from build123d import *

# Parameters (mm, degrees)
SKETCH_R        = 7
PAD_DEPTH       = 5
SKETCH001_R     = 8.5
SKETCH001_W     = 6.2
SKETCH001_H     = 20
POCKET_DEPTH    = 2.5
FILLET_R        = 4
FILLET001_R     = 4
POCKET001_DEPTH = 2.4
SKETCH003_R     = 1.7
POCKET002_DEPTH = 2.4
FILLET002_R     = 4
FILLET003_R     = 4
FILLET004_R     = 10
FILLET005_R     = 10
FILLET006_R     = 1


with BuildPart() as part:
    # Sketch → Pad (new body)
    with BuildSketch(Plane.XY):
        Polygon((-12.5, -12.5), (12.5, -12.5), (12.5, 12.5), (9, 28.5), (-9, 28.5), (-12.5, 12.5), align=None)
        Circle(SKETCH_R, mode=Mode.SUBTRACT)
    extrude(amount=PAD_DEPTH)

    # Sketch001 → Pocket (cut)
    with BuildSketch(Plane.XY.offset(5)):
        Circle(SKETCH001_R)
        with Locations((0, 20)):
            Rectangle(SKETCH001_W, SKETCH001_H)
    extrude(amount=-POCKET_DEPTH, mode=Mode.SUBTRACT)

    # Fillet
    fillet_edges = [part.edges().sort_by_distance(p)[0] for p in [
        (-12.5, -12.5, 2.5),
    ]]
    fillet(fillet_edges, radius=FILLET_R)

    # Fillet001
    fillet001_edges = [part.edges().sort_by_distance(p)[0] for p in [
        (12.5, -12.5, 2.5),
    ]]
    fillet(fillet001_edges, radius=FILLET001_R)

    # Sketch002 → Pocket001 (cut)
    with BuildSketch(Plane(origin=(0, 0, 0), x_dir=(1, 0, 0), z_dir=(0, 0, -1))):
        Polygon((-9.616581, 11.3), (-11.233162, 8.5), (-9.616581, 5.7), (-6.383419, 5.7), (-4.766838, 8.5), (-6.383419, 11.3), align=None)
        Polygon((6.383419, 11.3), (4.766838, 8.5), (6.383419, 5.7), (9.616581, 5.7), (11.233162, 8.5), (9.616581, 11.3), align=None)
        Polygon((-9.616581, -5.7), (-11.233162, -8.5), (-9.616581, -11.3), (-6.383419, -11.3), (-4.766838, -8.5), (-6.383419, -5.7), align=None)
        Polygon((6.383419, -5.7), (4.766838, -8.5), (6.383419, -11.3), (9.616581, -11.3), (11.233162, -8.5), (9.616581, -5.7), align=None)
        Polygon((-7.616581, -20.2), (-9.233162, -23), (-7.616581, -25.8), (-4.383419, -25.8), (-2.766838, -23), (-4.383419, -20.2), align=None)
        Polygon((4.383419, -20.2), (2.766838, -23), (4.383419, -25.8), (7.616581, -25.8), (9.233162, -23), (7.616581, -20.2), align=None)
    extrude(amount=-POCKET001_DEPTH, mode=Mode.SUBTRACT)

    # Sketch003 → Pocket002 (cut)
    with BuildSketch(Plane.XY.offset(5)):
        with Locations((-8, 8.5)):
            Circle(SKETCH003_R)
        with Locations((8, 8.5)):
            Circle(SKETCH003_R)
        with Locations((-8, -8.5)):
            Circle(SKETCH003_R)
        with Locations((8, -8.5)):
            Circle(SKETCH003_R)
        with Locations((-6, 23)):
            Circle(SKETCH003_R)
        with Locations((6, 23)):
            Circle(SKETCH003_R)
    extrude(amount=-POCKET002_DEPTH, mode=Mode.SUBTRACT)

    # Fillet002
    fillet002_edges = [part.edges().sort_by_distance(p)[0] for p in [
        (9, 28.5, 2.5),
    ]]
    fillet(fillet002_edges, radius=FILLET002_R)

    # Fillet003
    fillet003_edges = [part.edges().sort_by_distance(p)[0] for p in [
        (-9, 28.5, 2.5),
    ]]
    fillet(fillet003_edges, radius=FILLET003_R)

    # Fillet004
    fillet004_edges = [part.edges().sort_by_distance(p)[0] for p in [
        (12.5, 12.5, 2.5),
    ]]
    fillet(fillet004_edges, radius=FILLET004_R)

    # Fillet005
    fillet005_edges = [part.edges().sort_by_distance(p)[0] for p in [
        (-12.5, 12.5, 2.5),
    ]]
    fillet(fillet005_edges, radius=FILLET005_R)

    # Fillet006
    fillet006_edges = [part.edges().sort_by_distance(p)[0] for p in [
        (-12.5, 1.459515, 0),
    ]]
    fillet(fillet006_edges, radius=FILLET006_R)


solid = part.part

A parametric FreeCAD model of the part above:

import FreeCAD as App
import Part
import Sketcher
Q = App.Units.Quantity


def edges_at(feature, points):
    """Names of the edges that pass closest to the given points."""
    edges = feature.Shape.Edges
    near = lambda p: min(range(len(edges)), key=lambda i: edges[i].distToShape(Part.Vertex(*p))[0])
    return sorted({f"Edge{near(p) + 1}" for p in points})


def add_polygon(sketch, points):
    """Adds a closed chain of lines whose ends are joined by coincident constraints."""
    first, n = sketch.GeometryCount, len(points)
    for a, b in zip(points, points[1:] + points[:1]):
        sketch.addGeometry(Part.LineSegment(App.Vector(*a, 0), App.Vector(*b, 0)), False)
    for i in range(n):
        sketch.addConstraint(Sketcher.Constraint("Coincident", first + i, 2, first + (i + 1) % n, 1))

doc = App.newDocument("Part")
body = doc.addObject("PartDesign::Body", "Body")

# Sketch on XY plane
sketch1 = body.newObject("Sketcher::SketchObject", "Sketch")
sketch1.AttachmentSupport = (doc.getObject("XY_Plane"), [""])
sketch1.MapMode = "FlatFace"
add_polygon(sketch1, [(-12, -12), (12, -12), (12, 12), (9, 28), (-9, 28), (-12, 12)])  # lines 0-5
sketch1.addGeometry(Part.Circle(App.Vector(0, 0, 0), App.Vector(0, 0, 1), 7), False)  # 6
sketch1.addConstraint(Sketcher.Constraint("Horizontal", 0))
sketch1.addConstraint(Sketcher.Constraint("Vertical", 1))
sketch1.addConstraint(Sketcher.Constraint("Horizontal", 3))
sketch1.addConstraint(Sketcher.Constraint("Vertical", 5))
sketch1.addConstraint(Sketcher.Constraint("Coincident", 6, 3, -1, 1))
sketch1.addConstraint(Sketcher.Constraint("Symmetric", 0, 2, 4, 2, -1, 1))
sketch1.addConstraint(Sketcher.Constraint("Horizontal", 1, 2, 4, 2))
sketch1.addConstraint(Sketcher.Constraint("Equal", 0, 1))
sketch1.addConstraint(Sketcher.Constraint("Equal", 2, 4))
sketch1.addConstraint(Sketcher.Constraint("Diameter", 6, Q("14 mm")))
sketch1.addConstraint(Sketcher.Constraint("DistanceX", 0, 1, 0, 2, Q("25 mm")))
sketch1.addConstraint(Sketcher.Constraint("DistanceX", 3, 2, 3, 1, Q("18 mm")))
sketch1.addConstraint(Sketcher.Constraint("DistanceY", 1, 2, 2, 2, Q("16 mm")))
pad1 = body.newObject("PartDesign::Pad", "Pad")
pad1.Profile = sketch1
pad1.Length = 5

# Sketch on XY plane
sketch2 = body.newObject("Sketcher::SketchObject", "Sketch001")
sketch2.AttachmentSupport = (doc.getObject("XY_Plane"), [""])
sketch2.MapMode = "FlatFace"
sketch2.AttachmentOffset = App.Placement(App.Vector(0, 0, 5), App.Rotation())
sketch2.addGeometry(Part.Circle(App.Vector(0, 0, 0), App.Vector(0, 0, 1), 8), False)  # 0
add_polygon(sketch2, [(-3, 30), (-3, 10), (3, 10), (3, 30)])  # lines 1-4
sketch2.addConstraint(Sketcher.Constraint("Vertical", 1))
sketch2.addConstraint(Sketcher.Constraint("Horizontal", 2))
sketch2.addConstraint(Sketcher.Constraint("Vertical", 3))
sketch2.addConstraint(Sketcher.Constraint("Horizontal", 4))
sketch2.addConstraint(Sketcher.Constraint("Coincident", 0, 3, -1, 1))
sketch2.addConstraint(Sketcher.Constraint("Diameter", 0, Q("17 mm")))
sketch2.addConstraint(Sketcher.Constraint("DistanceY", 1, 2, 1, 1, Q("20 mm")))
sketch2.addConstraint(Sketcher.Constraint("DistanceX", 2, 1, 2, 2, Q("6.2 mm")))
sketch2.addConstraint(Sketcher.Constraint("DistanceY", -1, 1, 1, 2, Q("10 mm")))
sketch2.addConstraint(Sketcher.Constraint("DistanceX", 1, 2, -1, 1, Q("3.1 mm")))
pocket1 = body.newObject("PartDesign::Pocket", "Pocket")
pocket1.Profile = sketch2
pocket1.Length = 2.5
doc.recompute()

fillet = body.newObject("PartDesign::Fillet", "Fillet")
fillet.Base = (pocket1, edges_at(pocket1, [(-12.5, -12.5, 2.5)]))
fillet.Radius = 4
doc.recompute()

fillet2 = body.newObject("PartDesign::Fillet", "Fillet001")
fillet2.Base = (fillet, edges_at(fillet, [(12.5, -12.5, 2.5)]))
fillet2.Radius = 4

# Sketch on XY plane
sketch3 = body.newObject("Sketcher::SketchObject", "Sketch002")
sketch3.AttachmentSupport = (doc.getObject("XY_Plane"), [""])
sketch3.MapMode = "FlatFace"
add_polygon(sketch3, [(-9.6, -11.3), (-11.2, -8.5), (-9.6, -5.7), (-6.4, -5.7), (-4.8, -8.5), (-6.4, -11.3)])  # lines 0-5
add_polygon(sketch3, [(6.4, -11.3), (4.8, -8.5), (6.4, -5.7), (9.6, -5.7), (11.2, -8.5), (9.6, -11.3)])  # lines 6-11
add_polygon(sketch3, [(-9.6, 5.7), (-11.2, 8.5), (-9.6, 11.3), (-6.4, 11.3), (-4.8, 8.5), (-6.4, 5.7)])  # lines 12-17
add_polygon(sketch3, [(6.4, 5.7), (4.8, 8.5), (6.4, 11.3), (9.6, 11.3), (11.2, 8.5), (9.6, 5.7)])  # lines 18-23
add_polygon(sketch3, [(-7.6, 20.2), (-9.2, 23), (-7.6, 25.8), (-4.4, 25.8), (-2.8, 23), (-4.4, 20.2)])  # lines 24-29
add_polygon(sketch3, [(4.4, 20.2), (2.8, 23), (4.4, 25.8), (7.6, 25.8), (9.2, 23), (7.6, 20.2)])  # lines 30-35
sketch3.addConstraint(Sketcher.Constraint("Horizontal", 2))
sketch3.addConstraint(Sketcher.Constraint("Horizontal", 5))
sketch3.addConstraint(Sketcher.Constraint("Horizontal", 8))
sketch3.addConstraint(Sketcher.Constraint("Horizontal", 11))
sketch3.addConstraint(Sketcher.Constraint("Horizontal", 14))
sketch3.addConstraint(Sketcher.Constraint("Horizontal", 17))
sketch3.addConstraint(Sketcher.Constraint("Horizontal", 20))
sketch3.addConstraint(Sketcher.Constraint("Horizontal", 23))
sketch3.addConstraint(Sketcher.Constraint("Horizontal", 26))
sketch3.addConstraint(Sketcher.Constraint("Horizontal", 29))
sketch3.addConstraint(Sketcher.Constraint("Horizontal", 32))
sketch3.addConstraint(Sketcher.Constraint("Horizontal", 35))
sketch3.addConstraint(Sketcher.Constraint("Symmetric", 9, 2, 12, 2, -1, 1))
sketch3.addConstraint(Sketcher.Constraint("Symmetric", 10, 2, 13, 2, -1, 1))
sketch3.addConstraint(Sketcher.Constraint("Symmetric", 6, 2, 15, 2, -1, 1))
sketch3.addConstraint(Sketcher.Constraint("Symmetric", 7, 2, 16, 2, -1, 1))
sketch3.addConstraint(Sketcher.Constraint("Symmetric", 3, 2, 18, 2, -1, 1))
sketch3.addConstraint(Sketcher.Constraint("Symmetric", 4, 2, 19, 2, -1, 1))
sketch3.addConstraint(Sketcher.Constraint("Symmetric", 0, 2, 21, 2, -1, 1))
sketch3.addConstraint(Sketcher.Constraint("Symmetric", 1, 2, 22, 2, -1, 1))
sketch3.addConstraint(Sketcher.Constraint("Symmetric", 3, 2, 6, 2, -2))
sketch3.addConstraint(Sketcher.Constraint("Symmetric", 2, 2, 7, 2, -2))
sketch3.addConstraint(Sketcher.Constraint("Symmetric", 0, 2, 9, 2, -2))
sketch3.addConstraint(Sketcher.Constraint("Symmetric", 5, 2, 10, 2, -2))
sketch3.addConstraint(Sketcher.Constraint("Symmetric", 27, 2, 30, 2, -2))
sketch3.addConstraint(Sketcher.Constraint("Symmetric", 26, 2, 31, 2, -2))
sketch3.addConstraint(Sketcher.Constraint("Symmetric", 24, 2, 33, 2, -2))
sketch3.addConstraint(Sketcher.Constraint("Symmetric", 29, 2, 34, 2, -2))
sketch3.addConstraint(Sketcher.Constraint("Parallel", 0, 3))
sketch3.addConstraint(Sketcher.Constraint("Parallel", 1, 4))
sketch3.addConstraint(Sketcher.Constraint("Parallel", 3, 6))
sketch3.addConstraint(Sketcher.Constraint("Parallel", 4, 7))
sketch3.addConstraint(Sketcher.Constraint("Parallel", 6, 9))
sketch3.addConstraint(Sketcher.Constraint("Parallel", 9, 12))
sketch3.addConstraint(Sketcher.Constraint("Parallel", 12, 15))
sketch3.addConstraint(Sketcher.Constraint("Parallel", 15, 18))
sketch3.addConstraint(Sketcher.Constraint("Parallel", 18, 21))
sketch3.addConstraint(Sketcher.Constraint("Parallel", 21, 24))
sketch3.addConstraint(Sketcher.Constraint("Parallel", 22, 25))
sketch3.addConstraint(Sketcher.Constraint("Parallel", 24, 27))
sketch3.addConstraint(Sketcher.Constraint("Parallel", 25, 28))
sketch3.addConstraint(Sketcher.Constraint("Parallel", 27, 30))
sketch3.addConstraint(Sketcher.Constraint("Parallel", 30, 33))
sketch3.addConstraint(Sketcher.Constraint("Horizontal", 0, 2, 3, 2))
sketch3.addConstraint(Sketcher.Constraint("Horizontal", 24, 2, 27, 2))
sketch3.addConstraint(Sketcher.Constraint("Vertical", 2, 2, 4, 2))
sketch3.addConstraint(Sketcher.Constraint("Vertical", 26, 2, 28, 2))
sketch3.addConstraint(Sketcher.Constraint("Equal", 23, 26))
sketch3.addConstraint(Sketcher.Constraint("Equal", 22, 24))
sketch3.addConstraint(Sketcher.Constraint("Angle", 0, Q("120.000004 deg")))
sketch3.addConstraint(Sketcher.Constraint("DistanceY", -1, 1, 24, 2, Q("23 mm")))
sketch3.addConstraint(Sketcher.Constraint("DistanceX", 1, 2, 7, 2, Q("16 mm")))
sketch3.addConstraint(Sketcher.Constraint("DistanceY", 0, 2, 12, 2, Q("17 mm")))
sketch3.addConstraint(Sketcher.Constraint("DistanceX", 12, 2, 24, 2, Q("2 mm")))
sketch3.addConstraint(Sketcher.Constraint("DistanceY", 1, 2, -1, 1, Q("5.7 mm")))
sketch3.addConstraint(Sketcher.Constraint("DistanceX", 2, 1, 2, 2, Q("3.233162 mm")))
pocket2 = body.newObject("PartDesign::Pocket", "Pocket001")
pocket2.Profile = sketch3
pocket2.Length = 2.4
pocket2.Reversed = True

# Sketch on XY plane
sketch4 = body.newObject("Sketcher::SketchObject", "Sketch003")
sketch4.AttachmentSupport = (doc.getObject("XY_Plane"), [""])
sketch4.MapMode = "FlatFace"
sketch4.AttachmentOffset = App.Placement(App.Vector(0, 0, 5), App.Rotation())
sketch4.addGeometry(Part.Circle(App.Vector(-8, 8.5, 0), App.Vector(0, 0, 1), 1.7), False)
sketch4.addGeometry(Part.Circle(App.Vector(8, 8.5, 0), App.Vector(0, 0, 1), 1.7), False)
sketch4.addGeometry(Part.Circle(App.Vector(-8, -8.5, 0), App.Vector(0, 0, 1), 1.7), False)
sketch4.addGeometry(Part.Circle(App.Vector(8, -8.5, 0), App.Vector(0, 0, 1), 1.7), False)
sketch4.addGeometry(Part.Circle(App.Vector(-6, 23, 0), App.Vector(0, 0, 1), 1.7), False)
sketch4.addGeometry(Part.Circle(App.Vector(6, 23, 0), App.Vector(0, 0, 1), 1.7), False)
sketch4.addConstraint(Sketcher.Constraint("Equal", 0, 1))
sketch4.addConstraint(Sketcher.Constraint("Equal", 1, 2))
sketch4.addConstraint(Sketcher.Constraint("Equal", 2, 3))
sketch4.addConstraint(Sketcher.Constraint("Equal", 3, 4))
sketch4.addConstraint(Sketcher.Constraint("Equal", 4, 5))
sketch4.addConstraint(Sketcher.Constraint("Symmetric", 1, 3, 2, 3, -1, 1))
sketch4.addConstraint(Sketcher.Constraint("Symmetric", 0, 3, 3, 3, -1, 1))
sketch4.addConstraint(Sketcher.Constraint("Symmetric", 0, 3, 1, 3, -2))
sketch4.addConstraint(Sketcher.Constraint("Symmetric", 4, 3, 5, 3, -2))
sketch4.addConstraint(Sketcher.Constraint("Diameter", 0, Q("3.4 mm")))
sketch4.addConstraint(Sketcher.Constraint("DistanceX", 0, 3, -1, 1, Q("8 mm")))
sketch4.addConstraint(Sketcher.Constraint("DistanceX", 4, 3, -1, 1, Q("6 mm")))
sketch4.addConstraint(Sketcher.Constraint("DistanceY", -1, 1, 4, 3, Q("23 mm")))
sketch4.addConstraint(Sketcher.Constraint("DistanceY", 2, 3, 0, 3, Q("17 mm")))
pocket3 = body.newObject("PartDesign::Pocket", "Pocket002")
pocket3.Profile = sketch4
pocket3.Length = 2.4
doc.recompute()

fillet3 = body.newObject("PartDesign::Fillet", "Fillet002")
fillet3.Base = (pocket3, edges_at(pocket3, [(9, 28.5, 2.5)]))
fillet3.Radius = 4
doc.recompute()

fillet4 = body.newObject("PartDesign::Fillet", "Fillet003")
fillet4.Base = (fillet3, edges_at(fillet3, [(-9, 28.5, 2.5)]))
fillet4.Radius = 4
doc.recompute()

fillet5 = body.newObject("PartDesign::Fillet", "Fillet004")
fillet5.Base = (fillet4, edges_at(fillet4, [(12.5, 12.5, 2.5)]))
fillet5.Radius = 10
doc.recompute()

fillet6 = body.newObject("PartDesign::Fillet", "Fillet005")
fillet6.Base = (fillet5, edges_at(fillet5, [(-12.5, 12.5, 2.5)]))
fillet6.Radius = 10
doc.recompute()

fillet7 = body.newObject("PartDesign::Fillet", "Fillet006")
fillet7.Base = (fillet6, edges_at(fillet6, [(-12.5, 1.46, 0)]))
fillet7.Radius = 1

doc.recompute()
